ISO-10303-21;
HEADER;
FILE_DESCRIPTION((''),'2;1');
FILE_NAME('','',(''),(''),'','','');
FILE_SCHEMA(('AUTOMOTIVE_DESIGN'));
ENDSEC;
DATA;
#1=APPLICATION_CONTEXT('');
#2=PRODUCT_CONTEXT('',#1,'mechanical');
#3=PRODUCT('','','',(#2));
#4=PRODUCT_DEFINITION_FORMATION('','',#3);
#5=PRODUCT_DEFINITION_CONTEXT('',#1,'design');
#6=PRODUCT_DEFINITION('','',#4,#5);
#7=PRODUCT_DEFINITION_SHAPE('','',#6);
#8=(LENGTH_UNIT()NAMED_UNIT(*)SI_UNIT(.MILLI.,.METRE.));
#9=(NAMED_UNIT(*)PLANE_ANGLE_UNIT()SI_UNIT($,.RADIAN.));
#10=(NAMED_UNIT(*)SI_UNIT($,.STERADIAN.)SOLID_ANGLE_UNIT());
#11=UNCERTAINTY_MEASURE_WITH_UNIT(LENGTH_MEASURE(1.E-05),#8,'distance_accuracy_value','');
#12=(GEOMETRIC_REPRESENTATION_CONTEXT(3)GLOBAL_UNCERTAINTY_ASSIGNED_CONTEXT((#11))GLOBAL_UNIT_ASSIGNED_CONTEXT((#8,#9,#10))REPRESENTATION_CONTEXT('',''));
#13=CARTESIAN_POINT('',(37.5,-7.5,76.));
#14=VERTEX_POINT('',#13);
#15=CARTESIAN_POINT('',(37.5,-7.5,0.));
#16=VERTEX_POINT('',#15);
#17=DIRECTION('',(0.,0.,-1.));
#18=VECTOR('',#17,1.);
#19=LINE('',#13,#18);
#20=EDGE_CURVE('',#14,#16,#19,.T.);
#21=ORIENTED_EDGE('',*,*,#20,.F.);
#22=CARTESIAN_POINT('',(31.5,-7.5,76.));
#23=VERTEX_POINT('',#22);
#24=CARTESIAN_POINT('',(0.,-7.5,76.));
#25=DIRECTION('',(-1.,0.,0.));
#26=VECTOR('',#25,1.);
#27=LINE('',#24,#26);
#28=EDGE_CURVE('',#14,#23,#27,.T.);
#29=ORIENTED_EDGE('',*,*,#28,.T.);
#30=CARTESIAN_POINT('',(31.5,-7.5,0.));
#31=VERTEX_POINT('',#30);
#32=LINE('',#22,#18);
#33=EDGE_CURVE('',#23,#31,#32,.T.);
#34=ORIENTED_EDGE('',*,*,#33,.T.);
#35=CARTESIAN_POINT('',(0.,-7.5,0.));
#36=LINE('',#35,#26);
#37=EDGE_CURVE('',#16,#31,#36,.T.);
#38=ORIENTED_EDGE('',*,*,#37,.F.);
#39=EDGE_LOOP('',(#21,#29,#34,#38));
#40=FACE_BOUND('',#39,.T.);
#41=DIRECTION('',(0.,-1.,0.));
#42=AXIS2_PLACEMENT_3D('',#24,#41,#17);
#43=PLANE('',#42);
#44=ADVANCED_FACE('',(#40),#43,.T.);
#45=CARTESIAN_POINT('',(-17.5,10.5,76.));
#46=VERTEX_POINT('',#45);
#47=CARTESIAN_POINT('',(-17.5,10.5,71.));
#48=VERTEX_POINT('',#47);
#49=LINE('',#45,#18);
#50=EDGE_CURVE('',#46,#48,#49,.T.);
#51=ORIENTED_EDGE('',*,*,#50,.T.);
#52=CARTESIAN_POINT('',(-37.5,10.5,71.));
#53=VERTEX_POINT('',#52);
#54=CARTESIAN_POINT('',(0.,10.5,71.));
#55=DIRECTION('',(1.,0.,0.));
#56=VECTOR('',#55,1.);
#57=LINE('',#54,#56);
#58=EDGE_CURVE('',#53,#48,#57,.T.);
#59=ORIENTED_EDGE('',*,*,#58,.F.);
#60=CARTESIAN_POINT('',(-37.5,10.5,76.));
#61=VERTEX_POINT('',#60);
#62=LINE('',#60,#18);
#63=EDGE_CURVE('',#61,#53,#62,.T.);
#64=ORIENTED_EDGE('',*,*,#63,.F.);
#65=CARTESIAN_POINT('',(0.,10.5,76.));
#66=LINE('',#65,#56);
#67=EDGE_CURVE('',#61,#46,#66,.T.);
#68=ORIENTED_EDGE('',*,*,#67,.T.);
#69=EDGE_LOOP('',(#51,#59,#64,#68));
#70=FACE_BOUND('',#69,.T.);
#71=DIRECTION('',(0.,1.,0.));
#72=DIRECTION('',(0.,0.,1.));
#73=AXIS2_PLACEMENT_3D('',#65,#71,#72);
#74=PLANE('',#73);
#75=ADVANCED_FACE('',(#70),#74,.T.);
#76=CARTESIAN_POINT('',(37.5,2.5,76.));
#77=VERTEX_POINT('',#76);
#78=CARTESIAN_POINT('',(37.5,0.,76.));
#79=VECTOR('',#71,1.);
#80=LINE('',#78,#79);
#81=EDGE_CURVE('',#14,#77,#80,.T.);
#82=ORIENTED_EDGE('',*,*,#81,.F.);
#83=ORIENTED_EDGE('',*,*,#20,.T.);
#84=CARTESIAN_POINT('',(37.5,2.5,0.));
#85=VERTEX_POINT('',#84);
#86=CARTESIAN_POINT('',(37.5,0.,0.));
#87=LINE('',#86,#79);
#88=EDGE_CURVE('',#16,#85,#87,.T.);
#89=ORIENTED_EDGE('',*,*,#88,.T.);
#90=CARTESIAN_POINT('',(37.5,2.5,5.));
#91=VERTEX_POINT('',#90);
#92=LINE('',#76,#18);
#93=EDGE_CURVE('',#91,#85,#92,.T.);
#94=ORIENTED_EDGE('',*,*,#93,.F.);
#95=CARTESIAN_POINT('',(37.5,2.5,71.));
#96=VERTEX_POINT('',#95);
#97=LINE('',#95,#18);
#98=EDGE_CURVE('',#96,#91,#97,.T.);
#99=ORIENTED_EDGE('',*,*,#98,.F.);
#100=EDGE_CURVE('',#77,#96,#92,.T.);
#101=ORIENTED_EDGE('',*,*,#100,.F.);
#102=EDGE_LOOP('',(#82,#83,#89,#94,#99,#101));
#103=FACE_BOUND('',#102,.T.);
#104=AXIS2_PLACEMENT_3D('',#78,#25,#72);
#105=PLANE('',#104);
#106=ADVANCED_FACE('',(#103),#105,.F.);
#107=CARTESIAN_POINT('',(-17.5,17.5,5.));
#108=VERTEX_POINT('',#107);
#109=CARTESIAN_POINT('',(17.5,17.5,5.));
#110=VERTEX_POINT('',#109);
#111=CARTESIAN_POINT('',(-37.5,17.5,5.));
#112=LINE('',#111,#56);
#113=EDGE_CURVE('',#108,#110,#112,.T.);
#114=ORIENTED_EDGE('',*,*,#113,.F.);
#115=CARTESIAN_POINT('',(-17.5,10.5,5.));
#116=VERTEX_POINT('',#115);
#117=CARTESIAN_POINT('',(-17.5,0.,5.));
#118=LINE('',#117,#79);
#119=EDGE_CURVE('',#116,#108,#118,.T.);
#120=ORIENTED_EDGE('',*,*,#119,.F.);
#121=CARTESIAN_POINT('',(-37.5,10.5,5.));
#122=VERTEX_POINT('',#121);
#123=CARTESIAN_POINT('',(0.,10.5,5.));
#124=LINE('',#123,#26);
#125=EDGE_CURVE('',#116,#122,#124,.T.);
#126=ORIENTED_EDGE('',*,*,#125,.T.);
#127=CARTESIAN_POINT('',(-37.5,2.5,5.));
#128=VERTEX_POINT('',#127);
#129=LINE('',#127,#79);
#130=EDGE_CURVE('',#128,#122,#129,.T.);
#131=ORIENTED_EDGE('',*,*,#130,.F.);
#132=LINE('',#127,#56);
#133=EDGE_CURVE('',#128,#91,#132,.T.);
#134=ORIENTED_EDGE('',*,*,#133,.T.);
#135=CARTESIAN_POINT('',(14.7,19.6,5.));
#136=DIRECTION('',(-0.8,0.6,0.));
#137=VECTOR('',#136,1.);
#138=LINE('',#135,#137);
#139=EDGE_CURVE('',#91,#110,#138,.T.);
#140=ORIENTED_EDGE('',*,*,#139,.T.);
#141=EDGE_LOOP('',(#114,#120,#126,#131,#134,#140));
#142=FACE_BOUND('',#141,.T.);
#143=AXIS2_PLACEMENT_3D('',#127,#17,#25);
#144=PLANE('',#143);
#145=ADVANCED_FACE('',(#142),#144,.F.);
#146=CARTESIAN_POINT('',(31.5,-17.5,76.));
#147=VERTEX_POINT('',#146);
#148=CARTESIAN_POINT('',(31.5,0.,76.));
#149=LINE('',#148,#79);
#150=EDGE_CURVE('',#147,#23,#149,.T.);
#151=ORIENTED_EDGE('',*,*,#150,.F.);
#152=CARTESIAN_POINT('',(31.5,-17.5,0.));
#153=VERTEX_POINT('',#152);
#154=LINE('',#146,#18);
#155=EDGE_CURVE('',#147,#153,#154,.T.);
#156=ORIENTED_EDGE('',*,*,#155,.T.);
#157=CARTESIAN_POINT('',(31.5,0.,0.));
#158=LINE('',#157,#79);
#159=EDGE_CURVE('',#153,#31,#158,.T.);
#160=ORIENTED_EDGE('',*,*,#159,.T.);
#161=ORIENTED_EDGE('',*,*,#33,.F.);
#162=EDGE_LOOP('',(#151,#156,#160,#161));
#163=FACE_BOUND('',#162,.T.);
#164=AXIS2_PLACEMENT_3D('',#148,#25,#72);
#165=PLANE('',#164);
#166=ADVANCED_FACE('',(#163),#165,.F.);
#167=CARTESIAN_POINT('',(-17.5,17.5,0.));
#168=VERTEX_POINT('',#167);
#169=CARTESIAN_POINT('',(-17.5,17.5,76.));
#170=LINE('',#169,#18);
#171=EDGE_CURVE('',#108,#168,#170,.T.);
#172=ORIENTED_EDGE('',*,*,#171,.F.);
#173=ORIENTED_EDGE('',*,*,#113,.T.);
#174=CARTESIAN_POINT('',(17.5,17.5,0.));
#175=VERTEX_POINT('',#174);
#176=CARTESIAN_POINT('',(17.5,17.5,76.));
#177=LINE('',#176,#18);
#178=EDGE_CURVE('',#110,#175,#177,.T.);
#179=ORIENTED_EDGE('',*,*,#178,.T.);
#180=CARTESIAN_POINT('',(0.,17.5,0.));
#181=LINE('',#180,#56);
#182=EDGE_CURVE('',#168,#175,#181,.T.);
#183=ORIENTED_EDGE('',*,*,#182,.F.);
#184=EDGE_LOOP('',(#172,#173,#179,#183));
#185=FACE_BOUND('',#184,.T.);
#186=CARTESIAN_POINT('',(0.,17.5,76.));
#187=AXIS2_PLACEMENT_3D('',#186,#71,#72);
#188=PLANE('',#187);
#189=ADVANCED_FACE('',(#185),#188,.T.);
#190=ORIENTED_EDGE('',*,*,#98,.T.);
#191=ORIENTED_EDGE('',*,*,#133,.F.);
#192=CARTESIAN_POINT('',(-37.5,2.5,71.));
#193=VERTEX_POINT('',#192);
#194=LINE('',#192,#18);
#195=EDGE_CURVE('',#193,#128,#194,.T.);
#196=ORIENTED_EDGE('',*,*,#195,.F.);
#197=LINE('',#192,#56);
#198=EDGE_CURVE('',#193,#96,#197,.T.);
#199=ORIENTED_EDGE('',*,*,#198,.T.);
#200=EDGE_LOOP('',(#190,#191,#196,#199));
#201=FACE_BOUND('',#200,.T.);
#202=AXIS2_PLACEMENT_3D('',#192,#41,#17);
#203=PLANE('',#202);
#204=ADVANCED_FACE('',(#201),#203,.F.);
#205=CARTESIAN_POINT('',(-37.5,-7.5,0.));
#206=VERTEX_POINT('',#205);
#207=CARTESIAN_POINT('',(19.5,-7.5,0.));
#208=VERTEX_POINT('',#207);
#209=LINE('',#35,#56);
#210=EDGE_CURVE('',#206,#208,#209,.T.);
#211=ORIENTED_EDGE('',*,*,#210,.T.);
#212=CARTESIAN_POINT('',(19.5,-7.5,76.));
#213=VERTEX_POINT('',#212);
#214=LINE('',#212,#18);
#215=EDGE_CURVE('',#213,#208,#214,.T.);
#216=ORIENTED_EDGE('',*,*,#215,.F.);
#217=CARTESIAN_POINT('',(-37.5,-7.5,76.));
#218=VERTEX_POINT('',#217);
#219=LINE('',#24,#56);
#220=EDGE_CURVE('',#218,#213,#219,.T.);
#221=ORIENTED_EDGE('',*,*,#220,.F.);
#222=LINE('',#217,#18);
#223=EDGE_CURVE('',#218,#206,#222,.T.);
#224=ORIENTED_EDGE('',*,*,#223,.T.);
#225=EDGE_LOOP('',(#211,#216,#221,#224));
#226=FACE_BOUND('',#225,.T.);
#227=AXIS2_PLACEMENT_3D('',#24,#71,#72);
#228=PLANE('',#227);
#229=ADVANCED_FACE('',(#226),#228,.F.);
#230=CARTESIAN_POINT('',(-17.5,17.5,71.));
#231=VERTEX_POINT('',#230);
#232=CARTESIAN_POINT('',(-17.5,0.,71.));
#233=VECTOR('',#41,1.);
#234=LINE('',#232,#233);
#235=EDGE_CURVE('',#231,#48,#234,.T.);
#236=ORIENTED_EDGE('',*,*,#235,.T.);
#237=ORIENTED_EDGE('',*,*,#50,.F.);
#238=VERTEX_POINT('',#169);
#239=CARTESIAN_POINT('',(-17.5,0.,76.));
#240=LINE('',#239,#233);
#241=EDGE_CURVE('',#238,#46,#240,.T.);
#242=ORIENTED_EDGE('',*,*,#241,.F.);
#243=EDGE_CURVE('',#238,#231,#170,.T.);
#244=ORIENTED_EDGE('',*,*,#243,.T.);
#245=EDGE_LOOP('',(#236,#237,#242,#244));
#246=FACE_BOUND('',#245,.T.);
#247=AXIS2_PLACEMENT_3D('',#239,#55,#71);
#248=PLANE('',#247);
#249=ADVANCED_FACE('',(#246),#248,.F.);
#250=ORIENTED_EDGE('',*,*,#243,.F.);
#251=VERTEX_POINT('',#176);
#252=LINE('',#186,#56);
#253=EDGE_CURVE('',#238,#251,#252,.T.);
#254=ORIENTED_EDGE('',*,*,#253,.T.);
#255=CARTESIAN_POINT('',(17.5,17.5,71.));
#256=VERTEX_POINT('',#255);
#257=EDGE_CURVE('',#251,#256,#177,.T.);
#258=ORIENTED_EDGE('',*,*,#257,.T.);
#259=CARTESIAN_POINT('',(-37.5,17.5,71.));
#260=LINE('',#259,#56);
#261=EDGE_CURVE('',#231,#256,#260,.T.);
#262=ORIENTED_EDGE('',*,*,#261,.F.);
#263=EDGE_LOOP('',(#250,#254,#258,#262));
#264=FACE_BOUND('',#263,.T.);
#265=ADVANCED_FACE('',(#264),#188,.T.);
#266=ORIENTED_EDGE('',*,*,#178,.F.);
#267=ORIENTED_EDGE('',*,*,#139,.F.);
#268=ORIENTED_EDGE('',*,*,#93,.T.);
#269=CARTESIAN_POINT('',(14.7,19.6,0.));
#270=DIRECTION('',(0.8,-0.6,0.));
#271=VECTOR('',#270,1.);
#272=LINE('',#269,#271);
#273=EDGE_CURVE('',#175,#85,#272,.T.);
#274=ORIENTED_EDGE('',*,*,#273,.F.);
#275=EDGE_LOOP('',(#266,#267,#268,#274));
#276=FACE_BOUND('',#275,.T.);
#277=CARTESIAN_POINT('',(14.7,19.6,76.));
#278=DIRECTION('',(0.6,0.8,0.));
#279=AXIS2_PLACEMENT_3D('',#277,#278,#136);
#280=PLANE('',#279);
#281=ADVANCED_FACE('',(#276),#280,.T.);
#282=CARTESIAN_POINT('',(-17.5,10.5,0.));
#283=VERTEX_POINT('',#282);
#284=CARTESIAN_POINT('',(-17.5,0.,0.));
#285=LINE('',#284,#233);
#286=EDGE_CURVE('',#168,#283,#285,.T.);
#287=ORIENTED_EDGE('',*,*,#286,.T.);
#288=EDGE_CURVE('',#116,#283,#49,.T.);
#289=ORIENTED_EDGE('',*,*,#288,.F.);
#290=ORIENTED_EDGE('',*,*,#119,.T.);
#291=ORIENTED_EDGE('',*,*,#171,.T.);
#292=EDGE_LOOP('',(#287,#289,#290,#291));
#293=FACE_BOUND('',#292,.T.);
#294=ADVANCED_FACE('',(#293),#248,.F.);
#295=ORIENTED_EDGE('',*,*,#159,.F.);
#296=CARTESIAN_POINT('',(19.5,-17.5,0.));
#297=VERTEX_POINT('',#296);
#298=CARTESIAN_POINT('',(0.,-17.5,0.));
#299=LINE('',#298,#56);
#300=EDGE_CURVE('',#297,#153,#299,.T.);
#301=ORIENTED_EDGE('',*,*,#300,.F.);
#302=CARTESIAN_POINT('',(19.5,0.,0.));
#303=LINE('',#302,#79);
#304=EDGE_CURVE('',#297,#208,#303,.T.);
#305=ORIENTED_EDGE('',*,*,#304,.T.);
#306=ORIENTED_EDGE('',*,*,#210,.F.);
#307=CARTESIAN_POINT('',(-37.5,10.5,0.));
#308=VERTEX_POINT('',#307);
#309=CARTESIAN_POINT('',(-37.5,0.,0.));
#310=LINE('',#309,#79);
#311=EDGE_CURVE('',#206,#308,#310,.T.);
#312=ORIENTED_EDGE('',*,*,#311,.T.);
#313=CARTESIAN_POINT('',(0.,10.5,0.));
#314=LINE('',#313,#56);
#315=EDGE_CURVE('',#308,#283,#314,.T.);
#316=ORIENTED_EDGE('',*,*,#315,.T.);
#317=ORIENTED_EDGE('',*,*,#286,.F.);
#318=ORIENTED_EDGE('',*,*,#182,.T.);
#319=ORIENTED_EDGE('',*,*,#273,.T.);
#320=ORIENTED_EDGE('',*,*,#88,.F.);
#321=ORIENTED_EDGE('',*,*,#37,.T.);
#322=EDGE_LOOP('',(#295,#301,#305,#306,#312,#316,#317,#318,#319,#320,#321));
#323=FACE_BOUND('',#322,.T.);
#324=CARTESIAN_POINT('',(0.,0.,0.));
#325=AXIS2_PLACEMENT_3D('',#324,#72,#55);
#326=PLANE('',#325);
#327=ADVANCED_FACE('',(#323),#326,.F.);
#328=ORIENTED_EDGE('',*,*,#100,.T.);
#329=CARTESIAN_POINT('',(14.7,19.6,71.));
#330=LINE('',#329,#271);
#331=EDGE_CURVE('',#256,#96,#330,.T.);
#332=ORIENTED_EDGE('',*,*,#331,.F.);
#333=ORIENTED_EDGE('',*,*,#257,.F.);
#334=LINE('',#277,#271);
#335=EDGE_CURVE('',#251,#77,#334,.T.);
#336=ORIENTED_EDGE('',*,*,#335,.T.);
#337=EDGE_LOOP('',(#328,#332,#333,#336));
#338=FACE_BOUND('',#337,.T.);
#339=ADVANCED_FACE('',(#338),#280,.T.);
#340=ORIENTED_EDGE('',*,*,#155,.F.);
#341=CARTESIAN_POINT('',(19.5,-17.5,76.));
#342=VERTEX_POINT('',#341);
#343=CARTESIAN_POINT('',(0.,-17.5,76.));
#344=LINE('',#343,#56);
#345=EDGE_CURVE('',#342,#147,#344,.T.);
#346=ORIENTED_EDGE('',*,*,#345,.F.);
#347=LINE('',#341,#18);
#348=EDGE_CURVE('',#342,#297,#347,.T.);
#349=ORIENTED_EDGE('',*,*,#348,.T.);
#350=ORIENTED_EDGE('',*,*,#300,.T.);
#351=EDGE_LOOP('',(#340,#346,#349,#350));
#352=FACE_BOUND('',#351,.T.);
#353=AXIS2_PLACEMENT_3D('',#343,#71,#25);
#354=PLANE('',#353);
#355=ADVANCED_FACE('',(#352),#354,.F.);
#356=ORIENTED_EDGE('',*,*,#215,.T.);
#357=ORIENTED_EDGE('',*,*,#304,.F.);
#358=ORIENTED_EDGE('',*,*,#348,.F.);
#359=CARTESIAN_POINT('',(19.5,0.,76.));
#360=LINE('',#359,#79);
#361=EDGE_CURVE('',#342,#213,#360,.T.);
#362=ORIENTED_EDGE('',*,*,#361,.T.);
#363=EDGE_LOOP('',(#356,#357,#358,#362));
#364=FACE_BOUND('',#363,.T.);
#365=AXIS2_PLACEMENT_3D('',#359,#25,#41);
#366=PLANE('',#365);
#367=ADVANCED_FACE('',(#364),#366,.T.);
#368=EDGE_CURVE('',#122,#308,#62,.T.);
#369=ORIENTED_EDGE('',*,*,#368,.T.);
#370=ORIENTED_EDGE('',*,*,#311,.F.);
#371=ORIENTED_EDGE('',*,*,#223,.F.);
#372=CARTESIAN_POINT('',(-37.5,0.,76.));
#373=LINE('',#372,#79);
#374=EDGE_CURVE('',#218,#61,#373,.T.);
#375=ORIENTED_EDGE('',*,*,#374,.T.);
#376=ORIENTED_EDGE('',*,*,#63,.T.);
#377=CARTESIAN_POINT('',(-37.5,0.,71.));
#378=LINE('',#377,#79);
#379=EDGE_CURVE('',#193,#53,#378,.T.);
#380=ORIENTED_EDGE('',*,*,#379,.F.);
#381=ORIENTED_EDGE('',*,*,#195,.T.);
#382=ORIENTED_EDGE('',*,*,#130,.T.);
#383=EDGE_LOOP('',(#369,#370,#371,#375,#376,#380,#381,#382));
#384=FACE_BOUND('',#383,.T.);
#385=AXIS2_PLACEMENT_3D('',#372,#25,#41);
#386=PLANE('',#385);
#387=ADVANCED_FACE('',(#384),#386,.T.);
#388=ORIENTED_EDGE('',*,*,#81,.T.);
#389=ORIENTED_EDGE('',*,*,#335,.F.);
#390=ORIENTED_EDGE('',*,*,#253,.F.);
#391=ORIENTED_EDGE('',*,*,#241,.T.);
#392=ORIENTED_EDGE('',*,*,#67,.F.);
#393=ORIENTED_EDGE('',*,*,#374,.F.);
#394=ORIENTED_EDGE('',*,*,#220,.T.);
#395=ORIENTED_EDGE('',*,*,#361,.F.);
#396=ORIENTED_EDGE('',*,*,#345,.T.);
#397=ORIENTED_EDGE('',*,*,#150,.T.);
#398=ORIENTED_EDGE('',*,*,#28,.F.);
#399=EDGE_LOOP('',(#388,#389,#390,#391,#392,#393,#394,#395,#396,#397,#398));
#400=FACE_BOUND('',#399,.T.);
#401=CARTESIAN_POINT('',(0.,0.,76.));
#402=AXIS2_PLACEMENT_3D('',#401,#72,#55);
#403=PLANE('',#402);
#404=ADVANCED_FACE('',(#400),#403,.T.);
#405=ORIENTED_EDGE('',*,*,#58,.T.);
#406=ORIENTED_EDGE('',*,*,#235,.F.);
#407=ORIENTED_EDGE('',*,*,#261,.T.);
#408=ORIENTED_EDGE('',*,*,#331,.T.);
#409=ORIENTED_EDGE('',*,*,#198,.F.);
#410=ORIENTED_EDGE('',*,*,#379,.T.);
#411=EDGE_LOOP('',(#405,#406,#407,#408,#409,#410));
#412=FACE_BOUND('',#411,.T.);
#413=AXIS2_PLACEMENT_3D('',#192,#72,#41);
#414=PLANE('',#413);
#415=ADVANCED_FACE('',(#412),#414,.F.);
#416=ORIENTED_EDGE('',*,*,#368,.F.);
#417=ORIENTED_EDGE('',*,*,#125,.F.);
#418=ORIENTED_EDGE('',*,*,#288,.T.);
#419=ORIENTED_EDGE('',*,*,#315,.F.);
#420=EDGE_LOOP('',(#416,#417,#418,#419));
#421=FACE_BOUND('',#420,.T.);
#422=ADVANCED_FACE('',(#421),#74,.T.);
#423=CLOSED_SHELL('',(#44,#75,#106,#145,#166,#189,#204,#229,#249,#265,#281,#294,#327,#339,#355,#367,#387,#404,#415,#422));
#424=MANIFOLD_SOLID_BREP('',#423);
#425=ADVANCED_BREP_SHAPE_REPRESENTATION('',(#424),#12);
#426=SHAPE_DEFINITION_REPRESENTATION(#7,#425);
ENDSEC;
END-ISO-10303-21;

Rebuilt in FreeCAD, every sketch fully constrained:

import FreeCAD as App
import Part
import Sketcher
Q = App.Units.Quantity

doc = App.newDocument("Part")
body = doc.addObject("PartDesign::Body", "Body")

sketch1 = body.newObject("Sketcher::SketchObject", "Sketch")
sketch1.AttachmentSupport = (doc.getObject("XY_Plane"), [""])
sketch1.MapMode = "FlatFace"
sketch1.addGeometry(Part.LineSegment(App.Vector(38, 2, 0), App.Vector(18, 18, 0)), False)
sketch1.addGeometry(Part.LineSegment(App.Vector(18, 18, 0), App.Vector(-18, 18, 0)), False)
sketch1.addGeometry(Part.LineSegment(App.Vector(-18, 18, 0), App.Vector(-18, 10, 0)), False)
sketch1.addGeometry(Part.LineSegment(App.Vector(-18, 10, 0), App.Vector(-38, 10, 0)), False)
sketch1.addGeometry(Part.LineSegment(App.Vector(-38, 10, 0), App.Vector(-38, -8, 0)), False)
sketch1.addGeometry(Part.LineSegment(App.Vector(-38, -8, 0), App.Vector(20, -8, 0)), False)
sketch1.addGeometry(Part.LineSegment(App.Vector(20, -8, 0), App.Vector(20, -18, 0)), False)
sketch1.addGeometry(Part.LineSegment(App.Vector(20, -18, 0), App.Vector(32, -18, 0)), False)
sketch1.addGeometry(Part.LineSegment(App.Vector(32, -18, 0), App.Vector(32, -8, 0)), False)
sketch1.addGeometry(Part.LineSegment(App.Vector(32, -8, 0), App.Vector(38, -8, 0)), False)
sketch1.addGeometry(Part.LineSegment(App.Vector(38, -8, 0), App.Vector(38, 2, 0)), False)
sketch1.addConstraint(Sketcher.Constraint("Coincident", 0, 2, 1, 1))
sketch1.addConstraint(Sketcher.Constraint("Coincident", 1, 2, 2, 1))
sketch1.addConstraint(Sketcher.Constraint("Coincident", 2, 2, 3, 1))
sketch1.addConstraint(Sketcher.Constraint("Coincident", 3, 2, 4, 1))
sketch1.addConstraint(Sketcher.Constraint("Coincident", 4, 2, 5, 1))
sketch1.addConstraint(Sketcher.Constraint("Coincident", 5, 2, 6, 1))
sketch1.addConstraint(Sketcher.Constraint("Coincident", 6, 2, 7, 1))
sketch1.addConstraint(Sketcher.Constraint("Coincident", 7, 2, 8, 1))
sketch1.addConstraint(Sketcher.Constraint("Coincident", 8, 2, 9, 1))
sketch1.addConstraint(Sketcher.Constraint("Coincident", 9, 2, 10, 1))
sketch1.addConstraint(Sketcher.Constraint("Coincident", 10, 2, 0, 1))
sketch1.addConstraint(Sketcher.Constraint("Horizontal", 1))
sketch1.addConstraint(Sketcher.Constraint("Vertical", 2))
sketch1.addConstraint(Sketcher.Constraint("Horizontal", 3))
sketch1.addConstraint(Sketcher.Constraint("Vertical", 4))
sketch1.addConstraint(Sketcher.Constraint("Horizontal", 5))
sketch1.addConstraint(Sketcher.Constraint("Vertical", 6))
sketch1.addConstraint(Sketcher.Constraint("Horizontal", 7))
sketch1.addConstraint(Sketcher.Constraint("Vertical", 8))
sketch1.addConstraint(Sketcher.Constraint("Horizontal", 9))
sketch1.addConstraint(Sketcher.Constraint("Vertical", 10))
sketch1.addConstraint(Sketcher.Constraint("Symmetric", 4, 2, 9, 2, -2))
sketch1.addConstraint(Sketcher.Constraint("Equal", 8, 10))
sketch1.addConstraint(Sketcher.Constraint("DistanceX", 1, 2, 1, 1, Q("35 mm")))
sketch1.addConstraint(Sketcher.Constraint("DistanceX", 3, 2, 3, 1, Q("20 mm")))
sketch1.addConstraint(Sketcher.Constraint("DistanceX", 5, 1, 5, 2, Q("57 mm")))
sketch1.addConstraint(Sketcher.Constraint("DistanceX", 7, 1, 7, 2, Q("12 mm")))
sketch1.addConstraint(Sketcher.Constraint("DistanceX", 9, 1, 9, 2, Q("6 mm")))
sketch1.addConstraint(Sketcher.Constraint("DistanceY", 2, 2, 2, 1, Q("7 mm")))
sketch1.addConstraint(Sketcher.Constraint("DistanceY", 4, 2, 4, 1, Q("18 mm")))
sketch1.addConstraint(Sketcher.Constraint("DistanceY", 6, 2, 6, 1, Q("10 mm")))
sketch1.addConstraint(Sketcher.Constraint("DistanceY", -1, 1, 0, 2, Q("17.5 mm")))
pad1 = body.newObject("PartDesign::Pad", "Pad")
pad1.Profile = sketch1
pad1.Length = 76

sketch2 = body.newObject("Sketcher::SketchObject", "Sketch001")
sketch2.AttachmentSupport = (doc.getObject("YZ_Plane"), [""])
sketch2.MapMode = "FlatFace"
sketch2.AttachmentOffset = App.Placement(App.Vector(0, 0, 37.5), App.Rotation())
sketch2.addGeometry(Part.LineSegment(App.Vector(18, 71, 0), App.Vector(2, 71, 0)), False)
sketch2.addGeometry(Part.LineSegment(App.Vector(2, 71, 0), App.Vector(2, 5, 0)), False)
sketch2.addGeometry(Part.LineSegment(App.Vector(2, 5, 0), App.Vector(18, 5, 0)), False)
sketch2.addGeometry(Part.LineSegment(App.Vector(18, 5, 0), App.Vector(18, 71, 0)), False)
sketch2.addConstraint(Sketcher.Constraint("Coincident", 0, 2, 1, 1))
sketch2.addConstraint(Sketcher.Constraint("Coincident", 1, 2, 2, 1))
sketch2.addConstraint(Sketcher.Constraint("Coincident", 2, 2, 3, 1))
sketch2.addConstraint(Sketcher.Constraint("Coincident", 3, 2, 0, 1))
sketch2.addConstraint(Sketcher.Constraint("Horizontal", 0))
sketch2.addConstraint(Sketcher.Constraint("Vertical", 1))
sketch2.addConstraint(Sketcher.Constraint("Horizontal", 2))
sketch2.addConstraint(Sketcher.Constraint("Vertical", 3))
sketch2.addConstraint(Sketcher.Constraint("DistanceX", 0, 2, 0, 1, Q("15 mm")))
sketch2.addConstraint(Sketcher.Constraint("DistanceY", 1, 2, 1, 1, Q("66 mm")))
sketch2.addConstraint(Sketcher.Constraint("DistanceY", -1, 1, 0, 2, Q("71 mm")))
sketch2.addConstraint(Sketcher.Constraint("DistanceX", -1, 1, 0, 2, Q("2.5 mm")))
pocket1 = body.newObject("PartDesign::Pocket", "Pocket")
pocket1.Profile = sketch2
pocket1.Type = "ThroughAll"

doc.recompute()
